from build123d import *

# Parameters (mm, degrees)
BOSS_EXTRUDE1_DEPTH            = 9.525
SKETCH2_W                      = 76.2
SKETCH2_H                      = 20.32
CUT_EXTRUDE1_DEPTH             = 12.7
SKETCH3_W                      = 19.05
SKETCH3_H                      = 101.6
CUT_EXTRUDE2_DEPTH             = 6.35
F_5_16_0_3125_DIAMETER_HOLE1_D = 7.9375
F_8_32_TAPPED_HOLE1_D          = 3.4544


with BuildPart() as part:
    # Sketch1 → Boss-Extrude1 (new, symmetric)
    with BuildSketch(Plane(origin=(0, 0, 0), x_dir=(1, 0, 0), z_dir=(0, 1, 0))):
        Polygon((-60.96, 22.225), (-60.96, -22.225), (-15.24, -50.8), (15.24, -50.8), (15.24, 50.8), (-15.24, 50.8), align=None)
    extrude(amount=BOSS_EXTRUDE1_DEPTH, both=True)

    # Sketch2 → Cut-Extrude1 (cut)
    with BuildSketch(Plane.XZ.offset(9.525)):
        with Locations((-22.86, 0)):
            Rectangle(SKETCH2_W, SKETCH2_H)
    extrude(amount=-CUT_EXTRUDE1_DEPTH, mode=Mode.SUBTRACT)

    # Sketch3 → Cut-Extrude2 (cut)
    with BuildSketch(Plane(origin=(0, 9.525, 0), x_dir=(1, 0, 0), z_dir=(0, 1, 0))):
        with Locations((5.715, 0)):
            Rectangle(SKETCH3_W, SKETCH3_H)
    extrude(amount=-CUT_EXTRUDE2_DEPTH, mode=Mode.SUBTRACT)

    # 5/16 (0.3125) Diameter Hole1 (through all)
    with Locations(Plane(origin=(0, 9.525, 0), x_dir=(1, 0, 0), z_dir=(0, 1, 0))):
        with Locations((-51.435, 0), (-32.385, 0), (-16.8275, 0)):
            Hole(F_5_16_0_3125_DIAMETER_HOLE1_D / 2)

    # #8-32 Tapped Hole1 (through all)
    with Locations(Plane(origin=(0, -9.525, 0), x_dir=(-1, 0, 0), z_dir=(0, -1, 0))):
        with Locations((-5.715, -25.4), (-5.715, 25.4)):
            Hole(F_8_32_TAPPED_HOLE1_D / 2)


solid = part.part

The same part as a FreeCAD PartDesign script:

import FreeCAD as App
import Part
import Sketcher
Q = App.Units.Quantity

doc = App.newDocument("Part")
params = doc.addObject("Spreadsheet::Sheet", "Params")
for row, (alias, value) in enumerate([
    ("sketch1_height", "4 in"),
    ("sketch1_width", "1.2 in"),
    ("sketch1_height2", "1.75 in"),
    ("pad1_length", "0.75 in"),
    ("sketch2_width", "3 in"),
    ("sketch2_height", "0.8 in"),
    ("pocket1_length", "0.5 in"),
    ("sketch3_height", "4 in"),
    ("sketch3_width", "0.75 in"),
    ("pocket2_length", "0.25 in"),
    ("sketch4_diameter", "0.3125 in"),
    ("hole_diameter", "0.3125 in"),
    ("sketch5_diameter", "0.136 in"),
    ("hole2_diameter", "0.136 in"),
], start=1):
    params.set(f"A{row}", alias)
    params.set(f"B{row}", "=" + value)
    params.setAlias(f"B{row}", alias)

body = doc.addObject("PartDesign::Body", "Body")

sketch1 = doc.addObject("Sketcher::SketchObject", "Sketch")
body.addObject(sketch1)
sketch1.AttachmentSupport = (doc.XZ_Plane, [""])
sketch1.MapMode = "FlatFace"
sketch1.addGeometry(Part.LineSegment(App.Vector(-60.96, -22.225, 0), App.Vector(-60.96, 22.225, 0)), False)
sketch1.addGeometry(Part.LineSegment(App.Vector(-60.96, 22.225, 0), App.Vector(-15.24, 50.8, 0)), False)
sketch1.addGeometry(Part.LineSegment(App.Vector(-15.24, 50.8, 0), App.Vector(15.24, 50.8, 0)), False)
sketch1.addGeometry(Part.LineSegment(App.Vector(15.24, 50.8, 0), App.Vector(15.24, -50.8, 0)), False)
sketch1.addGeometry(Part.LineSegment(App.Vector(15.24, -50.8, 0), App.Vector(-15.24, -50.8, 0)), False)
sketch1.addGeometry(Part.LineSegment(App.Vector(-15.24, -50.8, 0), App.Vector(-60.96, -22.225, 0)), False)
sketch1.addConstraint(Sketcher.Constraint("Coincident", 0, 2, 1, 1))
sketch1.addConstraint(Sketcher.Constraint("Coincident", 1, 2, 2, 1))
sketch1.addConstraint(Sketcher.Constraint("Coincident", 2, 2, 3, 1))
sketch1.addConstraint(Sketcher.Constraint("Coincident", 3, 2, 4, 1))
sketch1.addConstraint(Sketcher.Constraint("Coincident", 4, 2, 5, 1))
sketch1.addConstraint(Sketcher.Constraint("Coincident", 5, 2, 0, 1))
sketch1.addConstraint(Sketcher.Constraint("Vertical", 0))
sketch1.addConstraint(Sketcher.Constraint("Horizontal", 2))
sketch1.addConstraint(Sketcher.Constraint("Vertical", 3))
sketch1.addConstraint(Sketcher.Constraint("Horizontal", 4))
sketch1.addConstraint(Sketcher.Constraint("Symmetric", 1, 2, 3, 2, -1, 1))
sketch1.addConstraint(Sketcher.Constraint("Vertical", 1, 2, 4, 2))
sketch1.addConstraint(Sketcher.Constraint("Equal", 1, 5))
sketch1.addConstraint(Sketcher.Constraint("DistanceY", 3, 2, 3, 1, Q("4 in")))
sketch1.addConstraint(Sketcher.Constraint("DistanceX", 2, 1, 2, 2, Q("1.2 in")))
sketch1.addConstraint(Sketcher.Constraint("DistanceX", 0, 2, 2, 2, Q("3 in")))
sketch1.addConstraint(Sketcher.Constraint("DistanceY", 0, 1, 0, 2, Q("1.75 in")))
sketch1.setExpression("Constraints[13]", "Params.sketch1_height")
sketch1.setExpression("Constraints[14]", "Params.sketch1_width")
sketch1.setExpression("Constraints[16]", "Params.sketch1_height2")
pad1 = doc.addObject("PartDesign::Pad", "Pad")
body.addObject(pad1)
pad1.Profile = sketch1
pad1.setExpression("Length", "Params.pad1_length")
pad1.Midplane = True

sketch2 = doc.addObject("Sketcher::SketchObject", "Sketch001")
body.addObject(sketch2)
sketch2.AttachmentSupport = (doc.XZ_Plane, [""])
sketch2.MapMode = "FlatFace"
sketch2.AttachmentOffset = App.Placement(App.Vector(0, 0, 0.375 * 25.4), App.Rotation())
sketch2.addGeometry(Part.LineSegment(App.Vector(-60.96, 10.16, 0), App.Vector(-60.96, -10.16, 0)), False)
sketch2.addGeometry(Part.LineSegment(App.Vector(-60.96, -10.16, 0), App.Vector(15.24, -10.16, 0)), False)
sketch2.addGeometry(Part.LineSegment(App.Vector(15.24, -10.16, 0), App.Vector(15.24, 10.16, 0)), False)
sketch2.addGeometry(Part.LineSegment(App.Vector(15.24, 10.16, 0), App.Vector(-60.96, 10.16, 0)), False)
sketch2.addConstraint(Sketcher.Constraint("Coincident", 0, 2, 1, 1))
sketch2.addConstraint(Sketcher.Constraint("Coincident", 1, 2, 2, 1))
sketch2.addConstraint(Sketcher.Constraint("Coincident", 2, 2, 3, 1))
sketch2.addConstraint(Sketcher.Constraint("Coincident", 3, 2, 0, 1))
sketch2.addConstraint(Sketcher.Constraint("Vertical", 0))
sketch2.addConstraint(Sketcher.Constraint("Horizontal", 1))
sketch2.addConstraint(Sketcher.Constraint("Vertical", 2))
sketch2.addConstraint(Sketcher.Constraint("Horizontal", 3))
sketch2.addConstraint(Sketcher.Constraint("DistanceX", 1, 1, 1, 2, Q("3 in")))
sketch2.addConstraint(Sketcher.Constraint("DistanceY", 0, 2, 0, 1, Q("0.8 in")))
sketch2.addConstraint(Sketcher.Constraint("DistanceX", 0, 2, -1, 1, Q("2.4 in")))
sketch2.addConstraint(Sketcher.Constraint("DistanceY", 0, 2, -1, 1, Q("0.4 in")))
sketch2.setExpression("Constraints[8]", "Params.sketch2_width")
sketch2.setExpression("Constraints[9]", "Params.sketch2_height")
pocket1 = doc.addObject("PartDesign::Pocket", "Pocket")
body.addObject(pocket1)
pocket1.Profile = sketch2
pocket1.setExpression("Length", "Params.pocket1_length")

sketch3 = doc.addObject("Sketcher::SketchObject", "Sketch002")
body.addObject(sketch3)
sketch3.AttachmentSupport = (doc.XZ_Plane, [""])
sketch3.MapMode = "FlatFace"
sketch3.AttachmentOffset = App.Placement(App.Vector(0, 0, -0.375 * 25.4), App.Rotation())
sketch3.addGeometry(Part.LineSegment(App.Vector(-3.81, -50.8, 0), App.Vector(-3.81, 50.8, 0)), False)
sketch3.addGeometry(Part.LineSegment(App.Vector(-3.81, 50.8, 0), App.Vector(15.24, 50.8, 0)), False)
sketch3.addGeometry(Part.LineSegment(App.Vector(15.24, 50.8, 0), App.Vector(15.24, -50.8, 0)), False)
sketch3.addGeometry(Part.LineSegment(App.Vector(15.24, -50.8, 0), App.Vector(-3.81, -50.8, 0)), False)
sketch3.addConstraint(Sketcher.Constraint("Coincident", 0, 2, 1, 1))
sketch3.addConstraint(Sketcher.Constraint("Coincident", 1, 2, 2, 1))
sketch3.addConstraint(Sketcher.Constraint("Coincident", 2, 2, 3, 1))
sketch3.addConstraint(Sketcher.Constraint("Coincident", 3, 2, 0, 1))
sketch3.addConstraint(Sketcher.Constraint("Vertical", 0))
sketch3.addConstraint(Sketcher.Constraint("Horizontal", 1))
sketch3.addConstraint(Sketcher.Constraint("Vertical", 2))
sketch3.addConstraint(Sketcher.Constraint("Horizontal", 3))
sketch3.addConstraint(Sketcher.Constraint("DistanceY", 0, 1, 0, 2, Q("4 in")))
sketch3.addConstraint(Sketcher.Constraint("DistanceY", -1, 1, 0, 2, Q("2 in")))
sketch3.addConstraint(Sketcher.Constraint("DistanceX", 1, 1, 1, 2, Q("0.75 in")))
sketch3.addConstraint(Sketcher.Constraint("DistanceX", -1, 1, 1, 2, Q("0.6 in")))
sketch3.setExpression("Constraints[8]", "Params.sketch3_height")
sketch3.setExpression("Constraints[10]", "Params.sketch3_width")
pocket2 = doc.addObject("PartDesign::Pocket", "Pocket001")
body.addObject(pocket2)
pocket2.Profile = sketch3
pocket2.setExpression("Length", "Params.pocket2_length")
pocket2.Reversed = True

sketch4 = doc.addObject("Sketcher::SketchObject", "Sketch003")
body.addObject(sketch4)
sketch4.AttachmentSupport = (doc.XZ_Plane, [""])
sketch4.MapMode = "FlatFace"
sketch4.AttachmentOffset = App.Placement(App.Vector(0, 0, -0.375 * 25.4), App.Rotation())
sketch4.addGeometry(Part.Circle(App.Vector(-51.435, 0, 0), App.Vector(0, 0, 1), 3.96875), False)
sketch4.addGeometry(Part.Circle(App.Vector(-32.385, 0, 0), App.Vector(0, 0, 1), 3.96875), False)
sketch4.addGeometry(Part.Circle(App.Vector(-16.8275, 0, 0), App.Vector(0, 0, 1), 3.96875), False)
sketch4.addConstraint(Sketcher.Constraint("Equal", 0, 1))
sketch4.addConstraint(Sketcher.Constraint("Equal", 1, 2))
sketch4.addConstraint(Sketcher.Constraint("PointOnObject", 0, 3, -1))
sketch4.addConstraint(Sketcher.Constraint("PointOnObject", 1, 3, -1))
sketch4.addConstraint(Sketcher.Constraint("PointOnObject", 2, 3, -1))
sketch4.addConstraint(Sketcher.Constraint("Diameter", 0, Q("0.3125 in")))
sketch4.addConstraint(Sketcher.Constraint("DistanceX", 0, 3, 1, 3, Q("0.75 in")))
sketch4.addConstraint(Sketcher.Constraint("DistanceX", 0, 3, -1, 1, Q("2.025 in")))
sketch4.addConstraint(Sketcher.Constraint("DistanceX", 2, 3, -1, 1, Q("0.6625 in")))
sketch4.setExpression("Constraints[5]", "Params.sketch4_diameter")
doc.recompute()
hole = doc.addObject("PartDesign::Hole", "Hole")
body.addObject(hole)
hole.Profile = sketch4
hole.ThreadType = "None"
hole.setExpression("Diameter", "Params.hole_diameter")
hole.DepthType = "ThroughAll"
hole.Reversed = True

sketch5 = doc.addObject("Sketcher::SketchObject", "Sketch004")
body.addObject(sketch5)
sketch5.AttachmentSupport = (doc.XZ_Plane, [""])
sketch5.MapMode = "FlatFace"
sketch5.AttachmentOffset = App.Placement(App.Vector(0, 0, 0.375 * 25.4), App.Rotation())
sketch5.addGeometry(Part.Circle(App.Vector(5.715, 25.4, 0), App.Vector(0, 0, 1), 1.7272), False)
sketch5.addGeometry(Part.Circle(App.Vector(5.715, -25.4, 0), App.Vector(0, 0, 1), 1.7272), False)
sketch5.addConstraint(Sketcher.Constraint("Equal", 0, 1))
sketch5.addConstraint(Sketcher.Constraint("Symmetric", 0, 3, 1, 3, -1))
sketch5.addConstraint(Sketcher.Constraint("Diameter", 0, Q("0.136 in")))
sketch5.addConstraint(Sketcher.Constraint("DistanceY", -1, 1, 0, 3, Q("1 in")))
sketch5.addConstraint(Sketcher.Constraint("DistanceX", -1, 1, 0, 3, Q("0.225 in")))
sketch5.setExpression("Constraints[2]", "Params.sketch5_diameter")
doc.recompute()
hole2 = doc.addObject("PartDesign::Hole", "Hole001")
body.addObject(hole2)
hole2.Profile = sketch5
hole2.ThreadType = "None"
hole2.setExpression("Diameter", "Params.hole2_diameter")
hole2.DepthType = "ThroughAll"

doc.recompute()
